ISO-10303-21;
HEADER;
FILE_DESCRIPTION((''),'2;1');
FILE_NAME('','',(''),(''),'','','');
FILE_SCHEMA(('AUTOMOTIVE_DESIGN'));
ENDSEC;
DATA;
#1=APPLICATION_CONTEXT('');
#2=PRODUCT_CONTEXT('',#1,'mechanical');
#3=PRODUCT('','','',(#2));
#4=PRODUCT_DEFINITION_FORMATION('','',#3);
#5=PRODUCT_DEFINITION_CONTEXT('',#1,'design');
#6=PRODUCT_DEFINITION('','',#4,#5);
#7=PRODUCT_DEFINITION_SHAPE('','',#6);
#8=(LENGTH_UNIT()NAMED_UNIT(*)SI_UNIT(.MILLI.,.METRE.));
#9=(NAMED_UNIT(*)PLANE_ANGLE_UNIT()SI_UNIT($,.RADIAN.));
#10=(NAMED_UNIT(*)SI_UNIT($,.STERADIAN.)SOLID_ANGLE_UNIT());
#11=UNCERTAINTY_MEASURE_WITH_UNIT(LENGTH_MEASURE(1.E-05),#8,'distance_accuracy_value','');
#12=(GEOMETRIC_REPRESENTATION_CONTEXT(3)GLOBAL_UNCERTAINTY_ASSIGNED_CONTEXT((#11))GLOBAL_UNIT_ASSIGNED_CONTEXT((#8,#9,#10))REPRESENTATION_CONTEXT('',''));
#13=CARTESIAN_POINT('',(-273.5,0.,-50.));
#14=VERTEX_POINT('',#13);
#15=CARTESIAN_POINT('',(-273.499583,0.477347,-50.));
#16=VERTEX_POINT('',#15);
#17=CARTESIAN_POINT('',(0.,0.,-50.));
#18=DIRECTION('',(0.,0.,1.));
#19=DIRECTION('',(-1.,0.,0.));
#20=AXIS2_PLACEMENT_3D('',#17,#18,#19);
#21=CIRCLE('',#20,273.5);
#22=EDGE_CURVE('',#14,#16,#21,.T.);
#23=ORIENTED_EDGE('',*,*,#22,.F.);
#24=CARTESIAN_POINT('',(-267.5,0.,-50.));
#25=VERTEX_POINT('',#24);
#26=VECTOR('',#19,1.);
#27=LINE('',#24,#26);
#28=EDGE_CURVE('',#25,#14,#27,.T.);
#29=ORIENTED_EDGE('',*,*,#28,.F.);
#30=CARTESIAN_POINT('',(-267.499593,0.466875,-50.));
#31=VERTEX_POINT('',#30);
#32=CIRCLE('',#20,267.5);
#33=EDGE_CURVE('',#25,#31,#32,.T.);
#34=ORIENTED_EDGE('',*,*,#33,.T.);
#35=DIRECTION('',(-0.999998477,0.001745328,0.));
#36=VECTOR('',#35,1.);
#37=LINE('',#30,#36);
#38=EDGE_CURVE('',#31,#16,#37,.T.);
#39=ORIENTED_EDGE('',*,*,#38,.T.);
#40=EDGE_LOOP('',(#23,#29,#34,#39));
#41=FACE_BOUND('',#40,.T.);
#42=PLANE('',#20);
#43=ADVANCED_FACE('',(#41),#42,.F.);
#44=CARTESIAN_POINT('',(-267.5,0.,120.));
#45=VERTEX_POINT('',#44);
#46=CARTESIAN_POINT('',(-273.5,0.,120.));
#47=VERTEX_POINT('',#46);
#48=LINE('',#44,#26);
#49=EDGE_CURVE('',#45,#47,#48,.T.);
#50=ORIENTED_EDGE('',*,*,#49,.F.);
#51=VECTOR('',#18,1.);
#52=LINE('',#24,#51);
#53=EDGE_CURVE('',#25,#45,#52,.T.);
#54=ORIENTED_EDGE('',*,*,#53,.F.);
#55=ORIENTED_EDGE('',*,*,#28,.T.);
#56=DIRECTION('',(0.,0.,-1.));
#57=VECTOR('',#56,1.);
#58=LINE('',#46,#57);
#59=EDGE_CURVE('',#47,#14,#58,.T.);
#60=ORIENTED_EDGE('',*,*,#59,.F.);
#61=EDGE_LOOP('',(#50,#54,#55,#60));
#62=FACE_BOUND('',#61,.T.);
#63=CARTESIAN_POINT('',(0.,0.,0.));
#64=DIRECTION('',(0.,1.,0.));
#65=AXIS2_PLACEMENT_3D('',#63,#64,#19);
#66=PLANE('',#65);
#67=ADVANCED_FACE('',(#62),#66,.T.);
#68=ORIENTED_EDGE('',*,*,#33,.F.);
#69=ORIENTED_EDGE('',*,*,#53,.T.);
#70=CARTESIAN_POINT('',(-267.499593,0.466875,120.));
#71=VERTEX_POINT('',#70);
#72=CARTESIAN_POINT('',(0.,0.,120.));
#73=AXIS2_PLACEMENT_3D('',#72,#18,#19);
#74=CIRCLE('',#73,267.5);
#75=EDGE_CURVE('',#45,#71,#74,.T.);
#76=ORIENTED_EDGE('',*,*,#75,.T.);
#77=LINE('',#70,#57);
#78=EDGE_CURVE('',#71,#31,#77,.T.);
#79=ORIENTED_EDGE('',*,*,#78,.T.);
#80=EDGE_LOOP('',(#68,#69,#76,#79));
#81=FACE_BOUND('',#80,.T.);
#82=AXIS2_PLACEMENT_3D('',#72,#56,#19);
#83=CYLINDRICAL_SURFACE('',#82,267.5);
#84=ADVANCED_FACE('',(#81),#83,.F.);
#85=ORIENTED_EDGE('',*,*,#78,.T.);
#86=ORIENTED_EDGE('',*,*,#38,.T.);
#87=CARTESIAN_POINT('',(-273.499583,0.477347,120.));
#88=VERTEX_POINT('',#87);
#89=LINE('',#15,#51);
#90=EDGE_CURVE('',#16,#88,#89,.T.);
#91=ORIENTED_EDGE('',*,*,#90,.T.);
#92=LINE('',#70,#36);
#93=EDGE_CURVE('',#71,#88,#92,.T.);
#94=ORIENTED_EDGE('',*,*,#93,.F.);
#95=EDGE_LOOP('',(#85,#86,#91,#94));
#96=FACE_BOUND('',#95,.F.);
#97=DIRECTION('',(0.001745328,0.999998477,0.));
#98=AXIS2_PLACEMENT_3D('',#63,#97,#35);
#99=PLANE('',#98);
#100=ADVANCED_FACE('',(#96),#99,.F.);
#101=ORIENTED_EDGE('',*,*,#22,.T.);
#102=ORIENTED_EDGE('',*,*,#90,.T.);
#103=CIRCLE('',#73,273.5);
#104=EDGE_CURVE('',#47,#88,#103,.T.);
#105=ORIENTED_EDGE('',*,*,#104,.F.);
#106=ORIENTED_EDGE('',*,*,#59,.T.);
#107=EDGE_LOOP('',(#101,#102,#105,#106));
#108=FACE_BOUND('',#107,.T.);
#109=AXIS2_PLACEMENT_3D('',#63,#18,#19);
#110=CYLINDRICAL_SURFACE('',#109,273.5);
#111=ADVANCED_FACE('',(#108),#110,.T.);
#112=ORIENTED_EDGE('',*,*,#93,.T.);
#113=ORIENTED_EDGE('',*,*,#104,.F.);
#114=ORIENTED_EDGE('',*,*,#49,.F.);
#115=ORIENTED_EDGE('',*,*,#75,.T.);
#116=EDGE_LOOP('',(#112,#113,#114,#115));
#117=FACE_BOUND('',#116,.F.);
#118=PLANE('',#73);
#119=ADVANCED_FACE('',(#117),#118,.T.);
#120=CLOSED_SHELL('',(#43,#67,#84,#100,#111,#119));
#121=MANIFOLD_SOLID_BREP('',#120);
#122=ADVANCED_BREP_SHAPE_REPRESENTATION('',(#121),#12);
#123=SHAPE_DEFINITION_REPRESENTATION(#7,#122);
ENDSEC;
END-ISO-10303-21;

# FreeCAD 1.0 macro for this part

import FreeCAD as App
import Part
import Sketcher

V = App.Vector


def add_polygon(sketch, points):
    """Adds a closed chain of lines whose ends are joined by coincident constraints."""
    first, n = sketch.GeometryCount, len(points)
    for a, b in zip(points, points[1:] + points[:1]):
        sketch.addGeometry(Part.LineSegment(App.Vector(*a, 0), App.Vector(*b, 0)), False)
    for i in range(n):
        sketch.addConstraint(Sketcher.Constraint("Coincident", first + i, 2, first + (i + 1) % n, 1))

doc = App.newDocument("Part")
params = doc.addObject("Spreadsheet::Sheet", "Params")
for row, (alias, value) in enumerate([
    ("sketch1_width", "6 mm"),
    ("revolution_angle", "359.9 deg"),
], start=1):
    params.set(f"A{row}", alias)
    params.set(f"B{row}", "=" + value)
    params.setAlias(f"B{row}", alias)

body = doc.addObject("PartDesign::Body", "Body")

# Sketch on XZ plane
sketch1 = body.newObject("Sketcher::SketchObject", "Sketch")
sketch1.AttachmentSupport = (doc.getObject("XZ_Plane"), [""])
sketch1.MapMode = "FlatFace"
add_polygon(sketch1, [(-274, 120), (-268, 120), (-268, -50), (-274, -50)])  # lines 0-3
sketch1.addConstraint([
    Sketcher.Constraint("Horizontal", 0),
    Sketcher.Constraint("Vertical", 1),
    Sketcher.Constraint("Horizontal", 2),
    Sketcher.Constraint("Vertical", 3),
    Sketcher.Constraint("DistanceX", 0, 1, 0, 2, 6.0),
    Sketcher.Constraint("DistanceY", -1, 1, 0, 2, 120.0),
    Sketcher.Constraint("DistanceY", 1, 2, -1, 1, 50.0),
    Sketcher.Constraint("DistanceX", 0, 2, -1, 1, 267.5),
])
sketch1.setExpression("Constraints[8]", "Params.sketch1_width")
revolution = body.newObject("PartDesign::Revolution", "Revolution")
revolution.Profile = sketch1
revolution.ReferenceAxis = (sketch1, ["V_Axis"])
revolution.setExpression("Angle", "Params.revolution_angle")

doc.recompute()
